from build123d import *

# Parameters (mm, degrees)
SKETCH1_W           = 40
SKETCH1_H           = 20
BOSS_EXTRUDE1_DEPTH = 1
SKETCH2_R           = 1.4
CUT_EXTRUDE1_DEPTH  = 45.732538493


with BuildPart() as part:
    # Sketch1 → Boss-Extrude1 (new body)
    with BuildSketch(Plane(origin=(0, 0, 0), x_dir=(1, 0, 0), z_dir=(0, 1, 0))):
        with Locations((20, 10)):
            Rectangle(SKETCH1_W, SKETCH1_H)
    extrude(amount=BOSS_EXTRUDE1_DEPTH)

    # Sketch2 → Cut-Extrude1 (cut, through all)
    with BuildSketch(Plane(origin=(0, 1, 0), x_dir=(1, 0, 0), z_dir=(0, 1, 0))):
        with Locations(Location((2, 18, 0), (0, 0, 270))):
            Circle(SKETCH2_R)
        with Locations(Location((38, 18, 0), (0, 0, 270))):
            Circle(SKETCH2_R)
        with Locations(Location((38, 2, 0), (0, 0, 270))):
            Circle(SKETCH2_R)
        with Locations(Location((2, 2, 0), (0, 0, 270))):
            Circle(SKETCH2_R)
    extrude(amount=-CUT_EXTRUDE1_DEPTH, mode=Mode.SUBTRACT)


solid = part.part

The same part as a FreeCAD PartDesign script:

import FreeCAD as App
import Part
import Sketcher

V = App.Vector


def add_polygon(sketch, points):
    """Adds a closed chain of lines whose ends are joined by coincident constraints."""
    first, n = sketch.GeometryCount, len(points)
    for a, b in zip(points, points[1:] + points[:1]):
        sketch.addGeometry(Part.LineSegment(App.Vector(*a, 0), App.Vector(*b, 0)), False)
    for i in range(n):
        sketch.addConstraint(Sketcher.Constraint("Coincident", first + i, 2, first + (i + 1) % n, 1))

doc = App.newDocument("Part")
body = doc.addObject("PartDesign::Body", "Body")

# Sketch on XZ plane
sketch1 = body.newObject("Sketcher::SketchObject", "Sketch")
sketch1.AttachmentSupport = (doc.getObject("XZ_Plane"), [""])
sketch1.MapMode = "FlatFace"
add_polygon(sketch1, [(0, -20), (0, 0), (40, 0), (40, -20)])  # lines 0-3
sketch1.addConstraint([
    Sketcher.Constraint("Vertical", 0),
    Sketcher.Constraint("Horizontal", 1),
    Sketcher.Constraint("Vertical", 2),
    Sketcher.Constraint("Horizontal", 3),
    Sketcher.Constraint("Coincident", 0, 2, -1, 1),
    Sketcher.Constraint("DistanceX", 1, 1, 1, 2, 40.0),
    Sketcher.Constraint("DistanceY", 0, 1, 0, 2, 20.0),
])
pad1 = body.newObject("PartDesign::Pad", "Pad")
pad1.Profile = sketch1
pad1.Length = 1
pad1.Reversed = True

# Sketch on XZ plane
sketch2 = body.newObject("Sketcher::SketchObject", "Sketch001")
sketch2.AttachmentSupport = (doc.getObject("XZ_Plane"), [""])
sketch2.MapMode = "FlatFace"
sketch2.AttachmentOffset = App.Placement(V(0, 0, -1), App.Rotation())
sketch2.addGeometry([
    Part.Circle(V(2, -18, 0), V(0, 0, 1), 1.4),
    Part.Circle(V(38, -18, 0), V(0, 0, 1), 1.4),
    Part.Circle(V(38, -2, 0), V(0, 0, 1), 1.4),
    Part.Circle(V(2, -2, 0), V(0, 0, 1), 1.4),
], False)
sketch2.addConstraint([
    Sketcher.Constraint("Equal", 0, 1),
    Sketcher.Constraint("Equal", 1, 2),
    Sketcher.Constraint("Equal", 2, 3),
    Sketcher.Constraint("Horizontal", 0, 3, 1, 3),
    Sketcher.Constraint("Horizontal", 2, 3, 3, 3),
    Sketcher.Constraint("Vertical", 1, 3, 2, 3),
    Sketcher.Constraint("Vertical", 0, 3, 3, 3),
    Sketcher.Constraint("Diameter", 0, 2.8),
    Sketcher.Constraint("DistanceX", -1, 1, 0, 3, 2.0),
    Sketcher.Constraint("DistanceY", 0, 3, -1, 1, 18.0),
    Sketcher.Constraint("DistanceX", -1, 1, 1, 3, 38.0),
    Sketcher.Constraint("DistanceY", 2, 3, -1, 1, 2.0),
])
pocket1 = body.newObject("PartDesign::Pocket", "Pocket")
pocket1.Profile = sketch2
pocket1.Type = "ThroughAll"
pocket1.Reversed = True

doc.recompute()
